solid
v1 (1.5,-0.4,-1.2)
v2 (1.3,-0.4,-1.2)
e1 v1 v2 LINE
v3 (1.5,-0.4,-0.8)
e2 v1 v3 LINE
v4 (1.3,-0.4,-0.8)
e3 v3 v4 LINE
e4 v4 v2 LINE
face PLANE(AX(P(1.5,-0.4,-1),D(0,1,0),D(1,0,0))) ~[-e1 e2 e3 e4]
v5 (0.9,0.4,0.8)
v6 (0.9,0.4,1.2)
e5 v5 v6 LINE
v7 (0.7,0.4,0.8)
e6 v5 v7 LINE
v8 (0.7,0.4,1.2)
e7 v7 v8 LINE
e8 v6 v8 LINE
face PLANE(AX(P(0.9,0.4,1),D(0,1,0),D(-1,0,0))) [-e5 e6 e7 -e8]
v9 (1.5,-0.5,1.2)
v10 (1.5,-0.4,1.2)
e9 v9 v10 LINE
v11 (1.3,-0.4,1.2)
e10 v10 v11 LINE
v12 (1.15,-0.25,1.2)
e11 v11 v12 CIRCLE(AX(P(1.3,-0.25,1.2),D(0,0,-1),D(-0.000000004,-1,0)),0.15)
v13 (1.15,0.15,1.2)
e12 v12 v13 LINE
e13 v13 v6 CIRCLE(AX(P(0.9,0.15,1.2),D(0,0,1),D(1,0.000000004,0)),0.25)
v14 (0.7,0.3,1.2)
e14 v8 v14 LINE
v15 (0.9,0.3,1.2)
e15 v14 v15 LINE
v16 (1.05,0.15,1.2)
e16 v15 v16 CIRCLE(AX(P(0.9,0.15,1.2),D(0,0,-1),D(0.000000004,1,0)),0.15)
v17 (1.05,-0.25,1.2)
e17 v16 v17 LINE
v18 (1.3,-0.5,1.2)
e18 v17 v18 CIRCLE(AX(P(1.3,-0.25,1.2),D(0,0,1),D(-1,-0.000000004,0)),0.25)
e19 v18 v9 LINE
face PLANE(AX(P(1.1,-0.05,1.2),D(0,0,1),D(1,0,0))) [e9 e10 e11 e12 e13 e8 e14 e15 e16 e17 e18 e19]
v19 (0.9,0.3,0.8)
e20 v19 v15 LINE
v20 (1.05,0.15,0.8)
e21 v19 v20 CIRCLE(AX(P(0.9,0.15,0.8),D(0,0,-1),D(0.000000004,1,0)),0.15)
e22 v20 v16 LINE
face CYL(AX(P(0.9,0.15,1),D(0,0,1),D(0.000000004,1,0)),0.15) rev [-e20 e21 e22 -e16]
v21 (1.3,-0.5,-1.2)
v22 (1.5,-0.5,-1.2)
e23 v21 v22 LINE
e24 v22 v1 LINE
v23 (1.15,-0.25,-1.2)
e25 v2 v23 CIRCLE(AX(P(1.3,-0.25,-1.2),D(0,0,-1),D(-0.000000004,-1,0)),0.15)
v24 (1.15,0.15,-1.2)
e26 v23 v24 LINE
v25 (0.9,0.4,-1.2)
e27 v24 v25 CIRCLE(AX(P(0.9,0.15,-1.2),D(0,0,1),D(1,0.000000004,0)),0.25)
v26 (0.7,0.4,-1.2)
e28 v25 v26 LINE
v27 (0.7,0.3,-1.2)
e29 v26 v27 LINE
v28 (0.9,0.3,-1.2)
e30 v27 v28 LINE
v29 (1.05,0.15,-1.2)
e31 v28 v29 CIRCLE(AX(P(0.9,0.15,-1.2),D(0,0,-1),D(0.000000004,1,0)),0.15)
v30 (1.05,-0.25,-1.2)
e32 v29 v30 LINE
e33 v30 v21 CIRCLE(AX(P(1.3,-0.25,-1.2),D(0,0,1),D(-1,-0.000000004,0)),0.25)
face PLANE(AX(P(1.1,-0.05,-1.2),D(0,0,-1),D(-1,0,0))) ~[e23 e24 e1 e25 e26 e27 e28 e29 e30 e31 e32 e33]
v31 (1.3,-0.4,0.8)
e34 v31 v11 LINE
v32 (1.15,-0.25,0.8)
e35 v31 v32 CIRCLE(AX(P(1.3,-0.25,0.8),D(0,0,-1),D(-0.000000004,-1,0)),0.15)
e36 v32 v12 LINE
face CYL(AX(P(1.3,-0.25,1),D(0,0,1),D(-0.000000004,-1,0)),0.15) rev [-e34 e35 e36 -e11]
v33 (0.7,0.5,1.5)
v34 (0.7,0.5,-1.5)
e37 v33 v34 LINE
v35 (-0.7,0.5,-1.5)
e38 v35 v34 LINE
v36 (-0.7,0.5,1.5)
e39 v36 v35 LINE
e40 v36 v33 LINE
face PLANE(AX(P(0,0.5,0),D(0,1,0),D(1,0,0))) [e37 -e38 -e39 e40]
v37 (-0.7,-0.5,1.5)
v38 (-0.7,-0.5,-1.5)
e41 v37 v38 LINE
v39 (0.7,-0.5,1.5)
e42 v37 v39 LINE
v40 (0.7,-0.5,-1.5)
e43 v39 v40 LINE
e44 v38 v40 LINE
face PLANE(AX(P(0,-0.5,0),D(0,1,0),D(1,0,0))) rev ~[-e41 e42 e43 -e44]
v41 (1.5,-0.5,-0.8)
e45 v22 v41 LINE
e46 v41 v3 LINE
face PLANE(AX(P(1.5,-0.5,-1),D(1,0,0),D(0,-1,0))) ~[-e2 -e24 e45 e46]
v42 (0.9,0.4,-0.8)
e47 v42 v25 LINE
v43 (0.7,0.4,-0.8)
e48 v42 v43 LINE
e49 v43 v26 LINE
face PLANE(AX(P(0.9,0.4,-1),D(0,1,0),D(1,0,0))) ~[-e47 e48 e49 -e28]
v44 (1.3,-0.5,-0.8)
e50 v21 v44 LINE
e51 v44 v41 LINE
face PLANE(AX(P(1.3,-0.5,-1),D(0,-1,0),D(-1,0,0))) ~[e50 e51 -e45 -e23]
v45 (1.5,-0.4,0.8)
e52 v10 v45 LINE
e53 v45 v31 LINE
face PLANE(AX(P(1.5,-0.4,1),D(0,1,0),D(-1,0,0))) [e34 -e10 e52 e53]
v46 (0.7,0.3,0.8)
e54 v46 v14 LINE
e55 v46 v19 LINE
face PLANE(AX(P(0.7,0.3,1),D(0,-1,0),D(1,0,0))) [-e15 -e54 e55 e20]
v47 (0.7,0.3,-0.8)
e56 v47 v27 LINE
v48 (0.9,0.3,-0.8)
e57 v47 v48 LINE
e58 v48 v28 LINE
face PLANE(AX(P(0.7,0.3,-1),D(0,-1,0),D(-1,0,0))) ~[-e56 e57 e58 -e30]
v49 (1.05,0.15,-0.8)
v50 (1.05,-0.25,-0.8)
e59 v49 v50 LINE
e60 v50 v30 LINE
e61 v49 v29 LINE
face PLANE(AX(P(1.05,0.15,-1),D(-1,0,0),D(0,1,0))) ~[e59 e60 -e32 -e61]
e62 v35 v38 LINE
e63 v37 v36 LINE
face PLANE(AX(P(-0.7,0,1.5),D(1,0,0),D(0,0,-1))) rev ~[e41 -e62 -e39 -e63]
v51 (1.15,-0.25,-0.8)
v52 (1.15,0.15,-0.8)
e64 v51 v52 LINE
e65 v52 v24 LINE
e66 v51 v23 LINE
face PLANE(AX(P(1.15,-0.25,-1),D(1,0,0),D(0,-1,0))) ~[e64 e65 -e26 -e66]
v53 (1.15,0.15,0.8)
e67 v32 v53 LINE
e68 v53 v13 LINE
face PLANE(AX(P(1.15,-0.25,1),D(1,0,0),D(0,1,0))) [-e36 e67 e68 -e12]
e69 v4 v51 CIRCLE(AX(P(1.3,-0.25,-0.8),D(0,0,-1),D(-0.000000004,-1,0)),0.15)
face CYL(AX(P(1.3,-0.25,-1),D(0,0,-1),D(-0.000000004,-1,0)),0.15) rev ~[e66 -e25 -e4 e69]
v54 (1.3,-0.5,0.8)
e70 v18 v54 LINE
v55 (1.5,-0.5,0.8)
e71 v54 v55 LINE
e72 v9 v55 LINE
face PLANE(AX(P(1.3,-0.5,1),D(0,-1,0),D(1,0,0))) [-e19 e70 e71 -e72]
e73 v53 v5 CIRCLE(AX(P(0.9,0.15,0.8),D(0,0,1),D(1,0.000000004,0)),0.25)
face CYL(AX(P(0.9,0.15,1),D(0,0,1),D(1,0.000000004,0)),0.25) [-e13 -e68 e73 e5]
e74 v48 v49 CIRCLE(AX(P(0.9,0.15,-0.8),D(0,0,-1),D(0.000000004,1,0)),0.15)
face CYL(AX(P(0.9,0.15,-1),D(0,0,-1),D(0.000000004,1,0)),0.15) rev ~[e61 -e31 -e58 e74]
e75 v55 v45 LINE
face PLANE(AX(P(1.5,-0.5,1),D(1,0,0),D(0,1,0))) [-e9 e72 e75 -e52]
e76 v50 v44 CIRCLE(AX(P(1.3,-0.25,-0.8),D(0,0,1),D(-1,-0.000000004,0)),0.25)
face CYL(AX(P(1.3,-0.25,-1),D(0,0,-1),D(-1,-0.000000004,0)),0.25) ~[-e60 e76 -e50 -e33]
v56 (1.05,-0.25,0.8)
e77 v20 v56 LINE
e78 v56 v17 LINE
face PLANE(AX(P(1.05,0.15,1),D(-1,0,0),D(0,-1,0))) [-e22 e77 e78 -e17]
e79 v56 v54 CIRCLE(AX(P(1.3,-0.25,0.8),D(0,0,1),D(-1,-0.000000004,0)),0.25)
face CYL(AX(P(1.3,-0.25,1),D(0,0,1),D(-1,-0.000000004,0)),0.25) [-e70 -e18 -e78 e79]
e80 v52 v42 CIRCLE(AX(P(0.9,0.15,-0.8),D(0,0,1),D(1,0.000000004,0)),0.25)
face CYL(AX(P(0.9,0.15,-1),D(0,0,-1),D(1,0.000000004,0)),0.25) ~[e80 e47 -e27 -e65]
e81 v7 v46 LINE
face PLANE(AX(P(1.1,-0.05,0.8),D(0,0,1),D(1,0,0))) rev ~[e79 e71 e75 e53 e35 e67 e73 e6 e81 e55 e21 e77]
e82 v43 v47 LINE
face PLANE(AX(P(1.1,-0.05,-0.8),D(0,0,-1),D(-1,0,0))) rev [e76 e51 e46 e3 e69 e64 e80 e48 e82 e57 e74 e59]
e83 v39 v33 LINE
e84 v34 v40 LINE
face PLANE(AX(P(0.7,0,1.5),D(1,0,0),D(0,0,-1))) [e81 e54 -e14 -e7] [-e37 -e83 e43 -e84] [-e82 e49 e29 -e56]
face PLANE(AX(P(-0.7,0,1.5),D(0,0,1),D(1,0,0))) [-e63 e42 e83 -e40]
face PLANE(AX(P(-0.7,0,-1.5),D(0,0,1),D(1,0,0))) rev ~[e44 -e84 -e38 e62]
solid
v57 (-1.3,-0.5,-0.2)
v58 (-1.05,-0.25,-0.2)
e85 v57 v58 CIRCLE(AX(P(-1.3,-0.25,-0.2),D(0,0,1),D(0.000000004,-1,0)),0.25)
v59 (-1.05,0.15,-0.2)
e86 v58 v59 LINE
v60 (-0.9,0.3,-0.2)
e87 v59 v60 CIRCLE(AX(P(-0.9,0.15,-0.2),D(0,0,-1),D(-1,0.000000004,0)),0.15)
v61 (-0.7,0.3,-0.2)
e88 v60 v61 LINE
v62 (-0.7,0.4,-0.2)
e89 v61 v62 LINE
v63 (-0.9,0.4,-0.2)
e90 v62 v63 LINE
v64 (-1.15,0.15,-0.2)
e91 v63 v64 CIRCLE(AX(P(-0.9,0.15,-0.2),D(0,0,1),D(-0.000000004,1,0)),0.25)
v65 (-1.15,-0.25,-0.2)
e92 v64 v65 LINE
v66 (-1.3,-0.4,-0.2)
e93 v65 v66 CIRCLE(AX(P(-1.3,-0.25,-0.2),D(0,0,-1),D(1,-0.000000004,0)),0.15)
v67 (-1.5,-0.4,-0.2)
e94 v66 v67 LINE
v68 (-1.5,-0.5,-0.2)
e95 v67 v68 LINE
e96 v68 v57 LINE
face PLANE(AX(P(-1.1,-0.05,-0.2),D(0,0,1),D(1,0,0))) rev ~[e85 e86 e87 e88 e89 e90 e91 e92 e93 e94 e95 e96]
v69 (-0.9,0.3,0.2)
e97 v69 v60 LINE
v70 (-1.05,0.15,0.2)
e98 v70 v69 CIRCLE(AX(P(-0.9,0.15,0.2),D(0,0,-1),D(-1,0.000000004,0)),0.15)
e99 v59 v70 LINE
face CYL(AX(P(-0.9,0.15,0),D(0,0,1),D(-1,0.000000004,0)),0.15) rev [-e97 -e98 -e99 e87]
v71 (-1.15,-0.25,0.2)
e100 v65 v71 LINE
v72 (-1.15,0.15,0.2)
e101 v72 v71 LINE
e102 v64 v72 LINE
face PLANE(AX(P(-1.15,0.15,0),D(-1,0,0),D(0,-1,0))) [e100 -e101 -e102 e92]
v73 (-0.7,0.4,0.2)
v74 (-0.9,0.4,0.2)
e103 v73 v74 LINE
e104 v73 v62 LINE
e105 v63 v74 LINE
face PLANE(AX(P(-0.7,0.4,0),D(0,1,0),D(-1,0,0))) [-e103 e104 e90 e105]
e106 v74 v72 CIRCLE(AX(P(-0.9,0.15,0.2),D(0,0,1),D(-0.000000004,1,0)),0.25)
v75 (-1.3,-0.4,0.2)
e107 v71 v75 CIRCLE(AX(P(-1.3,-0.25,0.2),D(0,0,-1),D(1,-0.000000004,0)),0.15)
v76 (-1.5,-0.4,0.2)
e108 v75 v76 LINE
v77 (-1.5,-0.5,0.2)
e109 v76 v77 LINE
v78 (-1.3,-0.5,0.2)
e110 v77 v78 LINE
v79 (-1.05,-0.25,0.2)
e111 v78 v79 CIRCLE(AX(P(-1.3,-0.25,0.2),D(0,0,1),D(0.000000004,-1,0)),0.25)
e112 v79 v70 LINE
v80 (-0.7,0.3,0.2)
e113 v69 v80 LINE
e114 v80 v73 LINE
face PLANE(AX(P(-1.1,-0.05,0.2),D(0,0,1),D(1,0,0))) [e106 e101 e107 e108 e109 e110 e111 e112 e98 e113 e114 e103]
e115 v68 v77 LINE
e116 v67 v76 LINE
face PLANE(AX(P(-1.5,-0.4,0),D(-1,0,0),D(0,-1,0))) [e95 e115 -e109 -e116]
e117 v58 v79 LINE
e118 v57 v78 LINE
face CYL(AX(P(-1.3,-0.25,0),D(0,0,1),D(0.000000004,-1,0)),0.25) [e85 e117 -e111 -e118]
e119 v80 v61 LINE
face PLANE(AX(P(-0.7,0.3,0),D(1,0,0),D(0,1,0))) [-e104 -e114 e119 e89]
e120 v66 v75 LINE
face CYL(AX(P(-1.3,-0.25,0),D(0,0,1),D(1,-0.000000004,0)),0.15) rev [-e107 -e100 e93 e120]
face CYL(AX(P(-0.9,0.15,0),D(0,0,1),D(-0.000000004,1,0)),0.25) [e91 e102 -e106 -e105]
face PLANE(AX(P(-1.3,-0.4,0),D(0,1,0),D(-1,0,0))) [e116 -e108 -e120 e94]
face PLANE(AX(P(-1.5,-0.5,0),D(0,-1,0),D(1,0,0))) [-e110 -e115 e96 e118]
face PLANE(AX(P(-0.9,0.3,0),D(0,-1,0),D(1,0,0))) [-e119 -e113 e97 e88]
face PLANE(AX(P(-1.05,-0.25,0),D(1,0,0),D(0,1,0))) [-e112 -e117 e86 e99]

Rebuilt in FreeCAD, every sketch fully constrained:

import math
import FreeCAD as App
import Part
import Sketcher

V = App.Vector
Q = App.Units.Quantity

doc = App.newDocument("Part")
body = doc.addObject("PartDesign::Body", "Body")

# Sketch on XZ plane
sketch1 = doc.addObject("Sketcher::SketchObject", "Sketch")
body.addObject(sketch1)
sketch1.AttachmentSupport = (doc.XZ_Plane, [""])
sketch1.MapMode = "FlatFace"
sketch1.addGeometry(Part.LineSegment(V(-0.7, -1.5, 0), V(-0.7, 1.5, 0)), False)
sketch1.addGeometry(Part.LineSegment(V(-0.7, 1.5, 0), V(0.7, 1.5, 0)), False)
sketch1.addGeometry(Part.LineSegment(V(0.7, 1.5, 0), V(0.7, -1.5, 0)), False)
sketch1.addGeometry(Part.LineSegment(V(0.7, -1.5, 0), V(-0.7, -1.5, 0)), False)
sketch1.addConstraint(Sketcher.Constraint("Coincident", 0, 2, 1, 1))
sketch1.addConstraint(Sketcher.Constraint("Coincident", 1, 2, 2, 1))
sketch1.addConstraint(Sketcher.Constraint("Coincident", 2, 2, 3, 1))
sketch1.addConstraint(Sketcher.Constraint("Coincident", 3, 2, 0, 1))
sketch1.addConstraint(Sketcher.Constraint("Vertical", 0))
sketch1.addConstraint(Sketcher.Constraint("Horizontal", 1))
sketch1.addConstraint(Sketcher.Constraint("Vertical", 2))
sketch1.addConstraint(Sketcher.Constraint("Horizontal", 3))
sketch1.addConstraint(Sketcher.Constraint("Symmetric", 0, 2, 2, 2, -1, 1))
sketch1.addConstraint(Sketcher.Constraint("DistanceY", 0, 1, 0, 2, Q("3 mm")))
sketch1.addConstraint(Sketcher.Constraint("DistanceX", 1, 1, 1, 2, Q("1.4 mm")))
pad1 = doc.addObject("PartDesign::Pad", "Pad")
body.addObject(pad1)
pad1.Profile = sketch1
pad1.Length = 1
pad1.Midplane = True

# Sketch on XY plane
sketch2 = doc.addObject("Sketcher::SketchObject", "Sketch001")
body.addObject(sketch2)
sketch2.AttachmentSupport = (doc.XY_Plane, [""])
sketch2.MapMode = "FlatFace"
sketch2.AttachmentOffset = App.Placement(V(0, 0, 1), App.Rotation())
sketch2.addGeometry(Part.LineSegment(V(1.5, -0.4, 0), V(1.3, -0.4, 0)), False)
sketch2.addGeometry(Part.ArcOfCircle(Part.Circle(V(1.3, -0.25, 0), V(0, 0, 1), 0.15), math.radians(-180), math.radians(-90)), False)
sketch2.addGeometry(Part.LineSegment(V(1.15, -0.25, 0), V(1.15, 0.15, 0)), False)
sketch2.addGeometry(Part.ArcOfCircle(Part.Circle(V(0.9, 0.15, 0), V(0, 0, 1), 0.25), math.radians(0), math.radians(90)), False)
sketch2.addGeometry(Part.LineSegment(V(0.9, 0.4, 0), V(0.7, 0.4, 0)), False)
sketch2.addGeometry(Part.LineSegment(V(0.7, 0.4, 0), V(0.7, 0.3, 0)), False)
sketch2.addGeometry(Part.LineSegment(V(0.7, 0.3, 0), V(0.9, 0.3, 0)), False)
sketch2.addGeometry(Part.ArcOfCircle(Part.Circle(V(0.9, 0.15, 0), V(0, 0, 1), 0.15), math.radians(0), math.radians(90)), False)
sketch2.addGeometry(Part.LineSegment(V(1.05, 0.15, 0), V(1.05, -0.25, 0)), False)
sketch2.addGeometry(Part.ArcOfCircle(Part.Circle(V(1.3, -0.25, 0), V(0, 0, 1), 0.25), math.radians(-180), math.radians(-90)), False)
sketch2.addGeometry(Part.LineSegment(V(1.3, -0.5, 0), V(1.5, -0.5, 0)), False)
sketch2.addGeometry(Part.LineSegment(V(1.5, -0.5, 0), V(1.5, -0.4, 0)), False)
sketch2.addConstraint(Sketcher.Constraint("Tangent", 0, 2, 1, 2))
sketch2.addConstraint(Sketcher.Constraint("Tangent", 1, 1, 2, 1))
sketch2.addConstraint(Sketcher.Constraint("Tangent", 2, 2, 3, 1))
sketch2.addConstraint(Sketcher.Constraint("Tangent", 3, 2, 4, 1))
sketch2.addConstraint(Sketcher.Constraint("Coincident", 4, 2, 5, 1))
sketch2.addConstraint(Sketcher.Constraint("Coincident", 5, 2, 6, 1))
sketch2.addConstraint(Sketcher.Constraint("Tangent", 6, 2, 7, 2))
sketch2.addConstraint(Sketcher.Constraint("Tangent", 7, 1, 8, 1))
sketch2.addConstraint(Sketcher.Constraint("Tangent", 8, 2, 9, 1))
sketch2.addConstraint(Sketcher.Constraint("Tangent", 9, 2, 10, 1))
sketch2.addConstraint(Sketcher.Constraint("Coincident", 10, 2, 11, 1))
sketch2.addConstraint(Sketcher.Constraint("Coincident", 11, 2, 0, 1))
sketch2.addConstraint(Sketcher.Constraint("Horizontal", 0))
sketch2.addConstraint(Sketcher.Constraint("Vertical", 2))
sketch2.addConstraint(Sketcher.Constraint("Horizontal", 4))
sketch2.addConstraint(Sketcher.Constraint("Vertical", 5))
sketch2.addConstraint(Sketcher.Constraint("Horizontal", 6))
sketch2.addConstraint(Sketcher.Constraint("Vertical", 8))
sketch2.addConstraint(Sketcher.Constraint("Horizontal", 10))
sketch2.addConstraint(Sketcher.Constraint("Vertical", 11))
sketch2.addConstraint(Sketcher.Constraint("Coincident", 7, 3, 3, 3))
sketch2.addConstraint(Sketcher.Constraint("Coincident", 9, 3, 1, 3))
sketch2.addConstraint(Sketcher.Constraint("Equal", 1, 7))
sketch2.addConstraint(Sketcher.Constraint("Equal", 0, 4))
sketch2.addConstraint(Sketcher.Constraint("Radius", 1, Q("0.15 mm")))
sketch2.addConstraint(Sketcher.Constraint("Radius", 3, Q("0.25 mm")))
sketch2.addConstraint(Sketcher.Constraint("DistanceX", 0, 2, 0, 1, Q("0.2 mm")))
sketch2.addConstraint(Sketcher.Constraint("DistanceY", 2, 1, 2, 2, Q("0.4 mm")))
sketch2.addConstraint(Sketcher.Constraint("DistanceX", -1, 1, 1, 3, Q("1.3 mm")))
sketch2.addConstraint(Sketcher.Constraint("DistanceY", 0, 2, -1, 1, Q("0.4 mm")))
pad2 = doc.addObject("PartDesign::Pad", "Pad001")
body.addObject(pad2)
pad2.Profile = sketch2
pad2.Length = 0.4
pad2.Midplane = True
doc.recompute()

mirrored = doc.addObject("PartDesign::Mirrored", "Mirrored")
body.addObject(mirrored)
mirrored.Originals = [pad2]
mirrored.MirrorPlane = (doc.XY_Plane, [""])
body.Tip = mirrored
body2 = doc.addObject("PartDesign::Body", "Body001")

# Sketch on XY plane
sketch3 = doc.addObject("Sketcher::SketchObject", "Sketch002")
body2.addObject(sketch3)
sketch3.AttachmentSupport = (doc.getObject("XY_Plane001"), [""])
sketch3.MapMode = "FlatFace"
sketch3.addGeometry(Part.LineSegment(V(-0.7, 0.4, 0), V(-0.9, 0.4, 0)), False)
sketch3.addGeometry(Part.ArcOfCircle(Part.Circle(V(-0.9, 0.15, 0), V(0, 0, 1), 0.25), math.radians(90), math.radians(180)), False)
sketch3.addGeometry(Part.LineSegment(V(-1.15, 0.15, 0), V(-1.15, -0.25, 0)), False)
sketch3.addGeometry(Part.ArcOfCircle(Part.Circle(V(-1.3, -0.25, 0), V(0, 0, 1), 0.15), math.radians(-90), math.radians(0)), False)
sketch3.addGeometry(Part.LineSegment(V(-1.3, -0.4, 0), V(-1.5, -0.4, 0)), False)
sketch3.addGeometry(Part.LineSegment(V(-1.5, -0.4, 0), V(-1.5, -0.5, 0)), False)
sketch3.addGeometry(Part.LineSegment(V(-1.5, -0.5, 0), V(-1.3, -0.5, 0)), False)
sketch3.addGeometry(Part.ArcOfCircle(Part.Circle(V(-1.3, -0.25, 0), V(0, 0, 1), 0.25), math.radians(-90), math.radians(0)), False)
sketch3.addGeometry(Part.LineSegment(V(-1.05, -0.25, 0), V(-1.05, 0.15, 0)), False)
sketch3.addGeometry(Part.ArcOfCircle(Part.Circle(V(-0.9, 0.15, 0), V(0, 0, 1), 0.15), math.radians(90), math.radians(180)), False)
sketch3.addGeometry(Part.LineSegment(V(-0.9, 0.3, 0), V(-0.7, 0.3, 0)), False)
sketch3.addGeometry(Part.LineSegment(V(-0.7, 0.3, 0), V(-0.7, 0.4, 0)), False)
sketch3.addConstraint(Sketcher.Constraint("Tangent", 0, 2, 1, 1))
sketch3.addConstraint(Sketcher.Constraint("Tangent", 1, 2, 2, 1))
sketch3.addConstraint(Sketcher.Constraint("Tangent", 2, 2, 3, 2))
sketch3.addConstraint(Sketcher.Constraint("Tangent", 3, 1, 4, 1))
sketch3.addConstraint(Sketcher.Constraint("Coincident", 4, 2, 5, 1))
sketch3.addConstraint(Sketcher.Constraint("Coincident", 5, 2, 6, 1))
sketch3.addConstraint(Sketcher.Constraint("Tangent", 6, 2, 7, 1))
sketch3.addConstraint(Sketcher.Constraint("Tangent", 7, 2, 8, 1))
sketch3.addConstraint(Sketcher.Constraint("Tangent", 8, 2, 9, 2))
sketch3.addConstraint(Sketcher.Constraint("Tangent", 9, 1, 10, 1))
sketch3.addConstraint(Sketcher.Constraint("Coincident", 10, 2, 11, 1))
sketch3.addConstraint(Sketcher.Constraint("Coincident", 11, 2, 0, 1))
sketch3.addConstraint(Sketcher.Constraint("Horizontal", 0))
sketch3.addConstraint(Sketcher.Constraint("Vertical", 2))
sketch3.addConstraint(Sketcher.Constraint("Horizontal", 4))
sketch3.addConstraint(Sketcher.Constraint("Vertical", 5))
sketch3.addConstraint(Sketcher.Constraint("Horizontal", 6))
sketch3.addConstraint(Sketcher.Constraint("Vertical", 8))
sketch3.addConstraint(Sketcher.Constraint("Horizontal", 10))
sketch3.addConstraint(Sketcher.Constraint("Vertical", 11))
sketch3.addConstraint(Sketcher.Constraint("Coincident", 7, 3, 3, 3))
sketch3.addConstraint(Sketcher.Constraint("Coincident", 9, 3, 1, 3))
sketch3.addConstraint(Sketcher.Constraint("Equal", 1, 7))
sketch3.addConstraint(Sketcher.Constraint("Equal", 0, 4))
sketch3.addConstraint(Sketcher.Constraint("Radius", 1, Q("0.25 mm")))
sketch3.addConstraint(Sketcher.Constraint("Radius", 3, Q("0.15 mm")))
sketch3.addConstraint(Sketcher.Constraint("DistanceX", 0, 2, 0, 1, Q("0.2 mm")))
sketch3.addConstraint(Sketcher.Constraint("DistanceY", 2, 2, 2, 1, Q("0.4 mm")))
sketch3.addConstraint(Sketcher.Constraint("DistanceX", 1, 3, -1, 1, Q("0.9 mm")))
sketch3.addConstraint(Sketcher.Constraint("DistanceY", -1, 1, 0, 2, Q("0.4 mm")))
pad3 = doc.addObject("PartDesign::Pad", "Pad002")
body2.addObject(pad3)
pad3.Profile = sketch3
pad3.Length = 0.4
pad3.Midplane = True

doc.recompute()
